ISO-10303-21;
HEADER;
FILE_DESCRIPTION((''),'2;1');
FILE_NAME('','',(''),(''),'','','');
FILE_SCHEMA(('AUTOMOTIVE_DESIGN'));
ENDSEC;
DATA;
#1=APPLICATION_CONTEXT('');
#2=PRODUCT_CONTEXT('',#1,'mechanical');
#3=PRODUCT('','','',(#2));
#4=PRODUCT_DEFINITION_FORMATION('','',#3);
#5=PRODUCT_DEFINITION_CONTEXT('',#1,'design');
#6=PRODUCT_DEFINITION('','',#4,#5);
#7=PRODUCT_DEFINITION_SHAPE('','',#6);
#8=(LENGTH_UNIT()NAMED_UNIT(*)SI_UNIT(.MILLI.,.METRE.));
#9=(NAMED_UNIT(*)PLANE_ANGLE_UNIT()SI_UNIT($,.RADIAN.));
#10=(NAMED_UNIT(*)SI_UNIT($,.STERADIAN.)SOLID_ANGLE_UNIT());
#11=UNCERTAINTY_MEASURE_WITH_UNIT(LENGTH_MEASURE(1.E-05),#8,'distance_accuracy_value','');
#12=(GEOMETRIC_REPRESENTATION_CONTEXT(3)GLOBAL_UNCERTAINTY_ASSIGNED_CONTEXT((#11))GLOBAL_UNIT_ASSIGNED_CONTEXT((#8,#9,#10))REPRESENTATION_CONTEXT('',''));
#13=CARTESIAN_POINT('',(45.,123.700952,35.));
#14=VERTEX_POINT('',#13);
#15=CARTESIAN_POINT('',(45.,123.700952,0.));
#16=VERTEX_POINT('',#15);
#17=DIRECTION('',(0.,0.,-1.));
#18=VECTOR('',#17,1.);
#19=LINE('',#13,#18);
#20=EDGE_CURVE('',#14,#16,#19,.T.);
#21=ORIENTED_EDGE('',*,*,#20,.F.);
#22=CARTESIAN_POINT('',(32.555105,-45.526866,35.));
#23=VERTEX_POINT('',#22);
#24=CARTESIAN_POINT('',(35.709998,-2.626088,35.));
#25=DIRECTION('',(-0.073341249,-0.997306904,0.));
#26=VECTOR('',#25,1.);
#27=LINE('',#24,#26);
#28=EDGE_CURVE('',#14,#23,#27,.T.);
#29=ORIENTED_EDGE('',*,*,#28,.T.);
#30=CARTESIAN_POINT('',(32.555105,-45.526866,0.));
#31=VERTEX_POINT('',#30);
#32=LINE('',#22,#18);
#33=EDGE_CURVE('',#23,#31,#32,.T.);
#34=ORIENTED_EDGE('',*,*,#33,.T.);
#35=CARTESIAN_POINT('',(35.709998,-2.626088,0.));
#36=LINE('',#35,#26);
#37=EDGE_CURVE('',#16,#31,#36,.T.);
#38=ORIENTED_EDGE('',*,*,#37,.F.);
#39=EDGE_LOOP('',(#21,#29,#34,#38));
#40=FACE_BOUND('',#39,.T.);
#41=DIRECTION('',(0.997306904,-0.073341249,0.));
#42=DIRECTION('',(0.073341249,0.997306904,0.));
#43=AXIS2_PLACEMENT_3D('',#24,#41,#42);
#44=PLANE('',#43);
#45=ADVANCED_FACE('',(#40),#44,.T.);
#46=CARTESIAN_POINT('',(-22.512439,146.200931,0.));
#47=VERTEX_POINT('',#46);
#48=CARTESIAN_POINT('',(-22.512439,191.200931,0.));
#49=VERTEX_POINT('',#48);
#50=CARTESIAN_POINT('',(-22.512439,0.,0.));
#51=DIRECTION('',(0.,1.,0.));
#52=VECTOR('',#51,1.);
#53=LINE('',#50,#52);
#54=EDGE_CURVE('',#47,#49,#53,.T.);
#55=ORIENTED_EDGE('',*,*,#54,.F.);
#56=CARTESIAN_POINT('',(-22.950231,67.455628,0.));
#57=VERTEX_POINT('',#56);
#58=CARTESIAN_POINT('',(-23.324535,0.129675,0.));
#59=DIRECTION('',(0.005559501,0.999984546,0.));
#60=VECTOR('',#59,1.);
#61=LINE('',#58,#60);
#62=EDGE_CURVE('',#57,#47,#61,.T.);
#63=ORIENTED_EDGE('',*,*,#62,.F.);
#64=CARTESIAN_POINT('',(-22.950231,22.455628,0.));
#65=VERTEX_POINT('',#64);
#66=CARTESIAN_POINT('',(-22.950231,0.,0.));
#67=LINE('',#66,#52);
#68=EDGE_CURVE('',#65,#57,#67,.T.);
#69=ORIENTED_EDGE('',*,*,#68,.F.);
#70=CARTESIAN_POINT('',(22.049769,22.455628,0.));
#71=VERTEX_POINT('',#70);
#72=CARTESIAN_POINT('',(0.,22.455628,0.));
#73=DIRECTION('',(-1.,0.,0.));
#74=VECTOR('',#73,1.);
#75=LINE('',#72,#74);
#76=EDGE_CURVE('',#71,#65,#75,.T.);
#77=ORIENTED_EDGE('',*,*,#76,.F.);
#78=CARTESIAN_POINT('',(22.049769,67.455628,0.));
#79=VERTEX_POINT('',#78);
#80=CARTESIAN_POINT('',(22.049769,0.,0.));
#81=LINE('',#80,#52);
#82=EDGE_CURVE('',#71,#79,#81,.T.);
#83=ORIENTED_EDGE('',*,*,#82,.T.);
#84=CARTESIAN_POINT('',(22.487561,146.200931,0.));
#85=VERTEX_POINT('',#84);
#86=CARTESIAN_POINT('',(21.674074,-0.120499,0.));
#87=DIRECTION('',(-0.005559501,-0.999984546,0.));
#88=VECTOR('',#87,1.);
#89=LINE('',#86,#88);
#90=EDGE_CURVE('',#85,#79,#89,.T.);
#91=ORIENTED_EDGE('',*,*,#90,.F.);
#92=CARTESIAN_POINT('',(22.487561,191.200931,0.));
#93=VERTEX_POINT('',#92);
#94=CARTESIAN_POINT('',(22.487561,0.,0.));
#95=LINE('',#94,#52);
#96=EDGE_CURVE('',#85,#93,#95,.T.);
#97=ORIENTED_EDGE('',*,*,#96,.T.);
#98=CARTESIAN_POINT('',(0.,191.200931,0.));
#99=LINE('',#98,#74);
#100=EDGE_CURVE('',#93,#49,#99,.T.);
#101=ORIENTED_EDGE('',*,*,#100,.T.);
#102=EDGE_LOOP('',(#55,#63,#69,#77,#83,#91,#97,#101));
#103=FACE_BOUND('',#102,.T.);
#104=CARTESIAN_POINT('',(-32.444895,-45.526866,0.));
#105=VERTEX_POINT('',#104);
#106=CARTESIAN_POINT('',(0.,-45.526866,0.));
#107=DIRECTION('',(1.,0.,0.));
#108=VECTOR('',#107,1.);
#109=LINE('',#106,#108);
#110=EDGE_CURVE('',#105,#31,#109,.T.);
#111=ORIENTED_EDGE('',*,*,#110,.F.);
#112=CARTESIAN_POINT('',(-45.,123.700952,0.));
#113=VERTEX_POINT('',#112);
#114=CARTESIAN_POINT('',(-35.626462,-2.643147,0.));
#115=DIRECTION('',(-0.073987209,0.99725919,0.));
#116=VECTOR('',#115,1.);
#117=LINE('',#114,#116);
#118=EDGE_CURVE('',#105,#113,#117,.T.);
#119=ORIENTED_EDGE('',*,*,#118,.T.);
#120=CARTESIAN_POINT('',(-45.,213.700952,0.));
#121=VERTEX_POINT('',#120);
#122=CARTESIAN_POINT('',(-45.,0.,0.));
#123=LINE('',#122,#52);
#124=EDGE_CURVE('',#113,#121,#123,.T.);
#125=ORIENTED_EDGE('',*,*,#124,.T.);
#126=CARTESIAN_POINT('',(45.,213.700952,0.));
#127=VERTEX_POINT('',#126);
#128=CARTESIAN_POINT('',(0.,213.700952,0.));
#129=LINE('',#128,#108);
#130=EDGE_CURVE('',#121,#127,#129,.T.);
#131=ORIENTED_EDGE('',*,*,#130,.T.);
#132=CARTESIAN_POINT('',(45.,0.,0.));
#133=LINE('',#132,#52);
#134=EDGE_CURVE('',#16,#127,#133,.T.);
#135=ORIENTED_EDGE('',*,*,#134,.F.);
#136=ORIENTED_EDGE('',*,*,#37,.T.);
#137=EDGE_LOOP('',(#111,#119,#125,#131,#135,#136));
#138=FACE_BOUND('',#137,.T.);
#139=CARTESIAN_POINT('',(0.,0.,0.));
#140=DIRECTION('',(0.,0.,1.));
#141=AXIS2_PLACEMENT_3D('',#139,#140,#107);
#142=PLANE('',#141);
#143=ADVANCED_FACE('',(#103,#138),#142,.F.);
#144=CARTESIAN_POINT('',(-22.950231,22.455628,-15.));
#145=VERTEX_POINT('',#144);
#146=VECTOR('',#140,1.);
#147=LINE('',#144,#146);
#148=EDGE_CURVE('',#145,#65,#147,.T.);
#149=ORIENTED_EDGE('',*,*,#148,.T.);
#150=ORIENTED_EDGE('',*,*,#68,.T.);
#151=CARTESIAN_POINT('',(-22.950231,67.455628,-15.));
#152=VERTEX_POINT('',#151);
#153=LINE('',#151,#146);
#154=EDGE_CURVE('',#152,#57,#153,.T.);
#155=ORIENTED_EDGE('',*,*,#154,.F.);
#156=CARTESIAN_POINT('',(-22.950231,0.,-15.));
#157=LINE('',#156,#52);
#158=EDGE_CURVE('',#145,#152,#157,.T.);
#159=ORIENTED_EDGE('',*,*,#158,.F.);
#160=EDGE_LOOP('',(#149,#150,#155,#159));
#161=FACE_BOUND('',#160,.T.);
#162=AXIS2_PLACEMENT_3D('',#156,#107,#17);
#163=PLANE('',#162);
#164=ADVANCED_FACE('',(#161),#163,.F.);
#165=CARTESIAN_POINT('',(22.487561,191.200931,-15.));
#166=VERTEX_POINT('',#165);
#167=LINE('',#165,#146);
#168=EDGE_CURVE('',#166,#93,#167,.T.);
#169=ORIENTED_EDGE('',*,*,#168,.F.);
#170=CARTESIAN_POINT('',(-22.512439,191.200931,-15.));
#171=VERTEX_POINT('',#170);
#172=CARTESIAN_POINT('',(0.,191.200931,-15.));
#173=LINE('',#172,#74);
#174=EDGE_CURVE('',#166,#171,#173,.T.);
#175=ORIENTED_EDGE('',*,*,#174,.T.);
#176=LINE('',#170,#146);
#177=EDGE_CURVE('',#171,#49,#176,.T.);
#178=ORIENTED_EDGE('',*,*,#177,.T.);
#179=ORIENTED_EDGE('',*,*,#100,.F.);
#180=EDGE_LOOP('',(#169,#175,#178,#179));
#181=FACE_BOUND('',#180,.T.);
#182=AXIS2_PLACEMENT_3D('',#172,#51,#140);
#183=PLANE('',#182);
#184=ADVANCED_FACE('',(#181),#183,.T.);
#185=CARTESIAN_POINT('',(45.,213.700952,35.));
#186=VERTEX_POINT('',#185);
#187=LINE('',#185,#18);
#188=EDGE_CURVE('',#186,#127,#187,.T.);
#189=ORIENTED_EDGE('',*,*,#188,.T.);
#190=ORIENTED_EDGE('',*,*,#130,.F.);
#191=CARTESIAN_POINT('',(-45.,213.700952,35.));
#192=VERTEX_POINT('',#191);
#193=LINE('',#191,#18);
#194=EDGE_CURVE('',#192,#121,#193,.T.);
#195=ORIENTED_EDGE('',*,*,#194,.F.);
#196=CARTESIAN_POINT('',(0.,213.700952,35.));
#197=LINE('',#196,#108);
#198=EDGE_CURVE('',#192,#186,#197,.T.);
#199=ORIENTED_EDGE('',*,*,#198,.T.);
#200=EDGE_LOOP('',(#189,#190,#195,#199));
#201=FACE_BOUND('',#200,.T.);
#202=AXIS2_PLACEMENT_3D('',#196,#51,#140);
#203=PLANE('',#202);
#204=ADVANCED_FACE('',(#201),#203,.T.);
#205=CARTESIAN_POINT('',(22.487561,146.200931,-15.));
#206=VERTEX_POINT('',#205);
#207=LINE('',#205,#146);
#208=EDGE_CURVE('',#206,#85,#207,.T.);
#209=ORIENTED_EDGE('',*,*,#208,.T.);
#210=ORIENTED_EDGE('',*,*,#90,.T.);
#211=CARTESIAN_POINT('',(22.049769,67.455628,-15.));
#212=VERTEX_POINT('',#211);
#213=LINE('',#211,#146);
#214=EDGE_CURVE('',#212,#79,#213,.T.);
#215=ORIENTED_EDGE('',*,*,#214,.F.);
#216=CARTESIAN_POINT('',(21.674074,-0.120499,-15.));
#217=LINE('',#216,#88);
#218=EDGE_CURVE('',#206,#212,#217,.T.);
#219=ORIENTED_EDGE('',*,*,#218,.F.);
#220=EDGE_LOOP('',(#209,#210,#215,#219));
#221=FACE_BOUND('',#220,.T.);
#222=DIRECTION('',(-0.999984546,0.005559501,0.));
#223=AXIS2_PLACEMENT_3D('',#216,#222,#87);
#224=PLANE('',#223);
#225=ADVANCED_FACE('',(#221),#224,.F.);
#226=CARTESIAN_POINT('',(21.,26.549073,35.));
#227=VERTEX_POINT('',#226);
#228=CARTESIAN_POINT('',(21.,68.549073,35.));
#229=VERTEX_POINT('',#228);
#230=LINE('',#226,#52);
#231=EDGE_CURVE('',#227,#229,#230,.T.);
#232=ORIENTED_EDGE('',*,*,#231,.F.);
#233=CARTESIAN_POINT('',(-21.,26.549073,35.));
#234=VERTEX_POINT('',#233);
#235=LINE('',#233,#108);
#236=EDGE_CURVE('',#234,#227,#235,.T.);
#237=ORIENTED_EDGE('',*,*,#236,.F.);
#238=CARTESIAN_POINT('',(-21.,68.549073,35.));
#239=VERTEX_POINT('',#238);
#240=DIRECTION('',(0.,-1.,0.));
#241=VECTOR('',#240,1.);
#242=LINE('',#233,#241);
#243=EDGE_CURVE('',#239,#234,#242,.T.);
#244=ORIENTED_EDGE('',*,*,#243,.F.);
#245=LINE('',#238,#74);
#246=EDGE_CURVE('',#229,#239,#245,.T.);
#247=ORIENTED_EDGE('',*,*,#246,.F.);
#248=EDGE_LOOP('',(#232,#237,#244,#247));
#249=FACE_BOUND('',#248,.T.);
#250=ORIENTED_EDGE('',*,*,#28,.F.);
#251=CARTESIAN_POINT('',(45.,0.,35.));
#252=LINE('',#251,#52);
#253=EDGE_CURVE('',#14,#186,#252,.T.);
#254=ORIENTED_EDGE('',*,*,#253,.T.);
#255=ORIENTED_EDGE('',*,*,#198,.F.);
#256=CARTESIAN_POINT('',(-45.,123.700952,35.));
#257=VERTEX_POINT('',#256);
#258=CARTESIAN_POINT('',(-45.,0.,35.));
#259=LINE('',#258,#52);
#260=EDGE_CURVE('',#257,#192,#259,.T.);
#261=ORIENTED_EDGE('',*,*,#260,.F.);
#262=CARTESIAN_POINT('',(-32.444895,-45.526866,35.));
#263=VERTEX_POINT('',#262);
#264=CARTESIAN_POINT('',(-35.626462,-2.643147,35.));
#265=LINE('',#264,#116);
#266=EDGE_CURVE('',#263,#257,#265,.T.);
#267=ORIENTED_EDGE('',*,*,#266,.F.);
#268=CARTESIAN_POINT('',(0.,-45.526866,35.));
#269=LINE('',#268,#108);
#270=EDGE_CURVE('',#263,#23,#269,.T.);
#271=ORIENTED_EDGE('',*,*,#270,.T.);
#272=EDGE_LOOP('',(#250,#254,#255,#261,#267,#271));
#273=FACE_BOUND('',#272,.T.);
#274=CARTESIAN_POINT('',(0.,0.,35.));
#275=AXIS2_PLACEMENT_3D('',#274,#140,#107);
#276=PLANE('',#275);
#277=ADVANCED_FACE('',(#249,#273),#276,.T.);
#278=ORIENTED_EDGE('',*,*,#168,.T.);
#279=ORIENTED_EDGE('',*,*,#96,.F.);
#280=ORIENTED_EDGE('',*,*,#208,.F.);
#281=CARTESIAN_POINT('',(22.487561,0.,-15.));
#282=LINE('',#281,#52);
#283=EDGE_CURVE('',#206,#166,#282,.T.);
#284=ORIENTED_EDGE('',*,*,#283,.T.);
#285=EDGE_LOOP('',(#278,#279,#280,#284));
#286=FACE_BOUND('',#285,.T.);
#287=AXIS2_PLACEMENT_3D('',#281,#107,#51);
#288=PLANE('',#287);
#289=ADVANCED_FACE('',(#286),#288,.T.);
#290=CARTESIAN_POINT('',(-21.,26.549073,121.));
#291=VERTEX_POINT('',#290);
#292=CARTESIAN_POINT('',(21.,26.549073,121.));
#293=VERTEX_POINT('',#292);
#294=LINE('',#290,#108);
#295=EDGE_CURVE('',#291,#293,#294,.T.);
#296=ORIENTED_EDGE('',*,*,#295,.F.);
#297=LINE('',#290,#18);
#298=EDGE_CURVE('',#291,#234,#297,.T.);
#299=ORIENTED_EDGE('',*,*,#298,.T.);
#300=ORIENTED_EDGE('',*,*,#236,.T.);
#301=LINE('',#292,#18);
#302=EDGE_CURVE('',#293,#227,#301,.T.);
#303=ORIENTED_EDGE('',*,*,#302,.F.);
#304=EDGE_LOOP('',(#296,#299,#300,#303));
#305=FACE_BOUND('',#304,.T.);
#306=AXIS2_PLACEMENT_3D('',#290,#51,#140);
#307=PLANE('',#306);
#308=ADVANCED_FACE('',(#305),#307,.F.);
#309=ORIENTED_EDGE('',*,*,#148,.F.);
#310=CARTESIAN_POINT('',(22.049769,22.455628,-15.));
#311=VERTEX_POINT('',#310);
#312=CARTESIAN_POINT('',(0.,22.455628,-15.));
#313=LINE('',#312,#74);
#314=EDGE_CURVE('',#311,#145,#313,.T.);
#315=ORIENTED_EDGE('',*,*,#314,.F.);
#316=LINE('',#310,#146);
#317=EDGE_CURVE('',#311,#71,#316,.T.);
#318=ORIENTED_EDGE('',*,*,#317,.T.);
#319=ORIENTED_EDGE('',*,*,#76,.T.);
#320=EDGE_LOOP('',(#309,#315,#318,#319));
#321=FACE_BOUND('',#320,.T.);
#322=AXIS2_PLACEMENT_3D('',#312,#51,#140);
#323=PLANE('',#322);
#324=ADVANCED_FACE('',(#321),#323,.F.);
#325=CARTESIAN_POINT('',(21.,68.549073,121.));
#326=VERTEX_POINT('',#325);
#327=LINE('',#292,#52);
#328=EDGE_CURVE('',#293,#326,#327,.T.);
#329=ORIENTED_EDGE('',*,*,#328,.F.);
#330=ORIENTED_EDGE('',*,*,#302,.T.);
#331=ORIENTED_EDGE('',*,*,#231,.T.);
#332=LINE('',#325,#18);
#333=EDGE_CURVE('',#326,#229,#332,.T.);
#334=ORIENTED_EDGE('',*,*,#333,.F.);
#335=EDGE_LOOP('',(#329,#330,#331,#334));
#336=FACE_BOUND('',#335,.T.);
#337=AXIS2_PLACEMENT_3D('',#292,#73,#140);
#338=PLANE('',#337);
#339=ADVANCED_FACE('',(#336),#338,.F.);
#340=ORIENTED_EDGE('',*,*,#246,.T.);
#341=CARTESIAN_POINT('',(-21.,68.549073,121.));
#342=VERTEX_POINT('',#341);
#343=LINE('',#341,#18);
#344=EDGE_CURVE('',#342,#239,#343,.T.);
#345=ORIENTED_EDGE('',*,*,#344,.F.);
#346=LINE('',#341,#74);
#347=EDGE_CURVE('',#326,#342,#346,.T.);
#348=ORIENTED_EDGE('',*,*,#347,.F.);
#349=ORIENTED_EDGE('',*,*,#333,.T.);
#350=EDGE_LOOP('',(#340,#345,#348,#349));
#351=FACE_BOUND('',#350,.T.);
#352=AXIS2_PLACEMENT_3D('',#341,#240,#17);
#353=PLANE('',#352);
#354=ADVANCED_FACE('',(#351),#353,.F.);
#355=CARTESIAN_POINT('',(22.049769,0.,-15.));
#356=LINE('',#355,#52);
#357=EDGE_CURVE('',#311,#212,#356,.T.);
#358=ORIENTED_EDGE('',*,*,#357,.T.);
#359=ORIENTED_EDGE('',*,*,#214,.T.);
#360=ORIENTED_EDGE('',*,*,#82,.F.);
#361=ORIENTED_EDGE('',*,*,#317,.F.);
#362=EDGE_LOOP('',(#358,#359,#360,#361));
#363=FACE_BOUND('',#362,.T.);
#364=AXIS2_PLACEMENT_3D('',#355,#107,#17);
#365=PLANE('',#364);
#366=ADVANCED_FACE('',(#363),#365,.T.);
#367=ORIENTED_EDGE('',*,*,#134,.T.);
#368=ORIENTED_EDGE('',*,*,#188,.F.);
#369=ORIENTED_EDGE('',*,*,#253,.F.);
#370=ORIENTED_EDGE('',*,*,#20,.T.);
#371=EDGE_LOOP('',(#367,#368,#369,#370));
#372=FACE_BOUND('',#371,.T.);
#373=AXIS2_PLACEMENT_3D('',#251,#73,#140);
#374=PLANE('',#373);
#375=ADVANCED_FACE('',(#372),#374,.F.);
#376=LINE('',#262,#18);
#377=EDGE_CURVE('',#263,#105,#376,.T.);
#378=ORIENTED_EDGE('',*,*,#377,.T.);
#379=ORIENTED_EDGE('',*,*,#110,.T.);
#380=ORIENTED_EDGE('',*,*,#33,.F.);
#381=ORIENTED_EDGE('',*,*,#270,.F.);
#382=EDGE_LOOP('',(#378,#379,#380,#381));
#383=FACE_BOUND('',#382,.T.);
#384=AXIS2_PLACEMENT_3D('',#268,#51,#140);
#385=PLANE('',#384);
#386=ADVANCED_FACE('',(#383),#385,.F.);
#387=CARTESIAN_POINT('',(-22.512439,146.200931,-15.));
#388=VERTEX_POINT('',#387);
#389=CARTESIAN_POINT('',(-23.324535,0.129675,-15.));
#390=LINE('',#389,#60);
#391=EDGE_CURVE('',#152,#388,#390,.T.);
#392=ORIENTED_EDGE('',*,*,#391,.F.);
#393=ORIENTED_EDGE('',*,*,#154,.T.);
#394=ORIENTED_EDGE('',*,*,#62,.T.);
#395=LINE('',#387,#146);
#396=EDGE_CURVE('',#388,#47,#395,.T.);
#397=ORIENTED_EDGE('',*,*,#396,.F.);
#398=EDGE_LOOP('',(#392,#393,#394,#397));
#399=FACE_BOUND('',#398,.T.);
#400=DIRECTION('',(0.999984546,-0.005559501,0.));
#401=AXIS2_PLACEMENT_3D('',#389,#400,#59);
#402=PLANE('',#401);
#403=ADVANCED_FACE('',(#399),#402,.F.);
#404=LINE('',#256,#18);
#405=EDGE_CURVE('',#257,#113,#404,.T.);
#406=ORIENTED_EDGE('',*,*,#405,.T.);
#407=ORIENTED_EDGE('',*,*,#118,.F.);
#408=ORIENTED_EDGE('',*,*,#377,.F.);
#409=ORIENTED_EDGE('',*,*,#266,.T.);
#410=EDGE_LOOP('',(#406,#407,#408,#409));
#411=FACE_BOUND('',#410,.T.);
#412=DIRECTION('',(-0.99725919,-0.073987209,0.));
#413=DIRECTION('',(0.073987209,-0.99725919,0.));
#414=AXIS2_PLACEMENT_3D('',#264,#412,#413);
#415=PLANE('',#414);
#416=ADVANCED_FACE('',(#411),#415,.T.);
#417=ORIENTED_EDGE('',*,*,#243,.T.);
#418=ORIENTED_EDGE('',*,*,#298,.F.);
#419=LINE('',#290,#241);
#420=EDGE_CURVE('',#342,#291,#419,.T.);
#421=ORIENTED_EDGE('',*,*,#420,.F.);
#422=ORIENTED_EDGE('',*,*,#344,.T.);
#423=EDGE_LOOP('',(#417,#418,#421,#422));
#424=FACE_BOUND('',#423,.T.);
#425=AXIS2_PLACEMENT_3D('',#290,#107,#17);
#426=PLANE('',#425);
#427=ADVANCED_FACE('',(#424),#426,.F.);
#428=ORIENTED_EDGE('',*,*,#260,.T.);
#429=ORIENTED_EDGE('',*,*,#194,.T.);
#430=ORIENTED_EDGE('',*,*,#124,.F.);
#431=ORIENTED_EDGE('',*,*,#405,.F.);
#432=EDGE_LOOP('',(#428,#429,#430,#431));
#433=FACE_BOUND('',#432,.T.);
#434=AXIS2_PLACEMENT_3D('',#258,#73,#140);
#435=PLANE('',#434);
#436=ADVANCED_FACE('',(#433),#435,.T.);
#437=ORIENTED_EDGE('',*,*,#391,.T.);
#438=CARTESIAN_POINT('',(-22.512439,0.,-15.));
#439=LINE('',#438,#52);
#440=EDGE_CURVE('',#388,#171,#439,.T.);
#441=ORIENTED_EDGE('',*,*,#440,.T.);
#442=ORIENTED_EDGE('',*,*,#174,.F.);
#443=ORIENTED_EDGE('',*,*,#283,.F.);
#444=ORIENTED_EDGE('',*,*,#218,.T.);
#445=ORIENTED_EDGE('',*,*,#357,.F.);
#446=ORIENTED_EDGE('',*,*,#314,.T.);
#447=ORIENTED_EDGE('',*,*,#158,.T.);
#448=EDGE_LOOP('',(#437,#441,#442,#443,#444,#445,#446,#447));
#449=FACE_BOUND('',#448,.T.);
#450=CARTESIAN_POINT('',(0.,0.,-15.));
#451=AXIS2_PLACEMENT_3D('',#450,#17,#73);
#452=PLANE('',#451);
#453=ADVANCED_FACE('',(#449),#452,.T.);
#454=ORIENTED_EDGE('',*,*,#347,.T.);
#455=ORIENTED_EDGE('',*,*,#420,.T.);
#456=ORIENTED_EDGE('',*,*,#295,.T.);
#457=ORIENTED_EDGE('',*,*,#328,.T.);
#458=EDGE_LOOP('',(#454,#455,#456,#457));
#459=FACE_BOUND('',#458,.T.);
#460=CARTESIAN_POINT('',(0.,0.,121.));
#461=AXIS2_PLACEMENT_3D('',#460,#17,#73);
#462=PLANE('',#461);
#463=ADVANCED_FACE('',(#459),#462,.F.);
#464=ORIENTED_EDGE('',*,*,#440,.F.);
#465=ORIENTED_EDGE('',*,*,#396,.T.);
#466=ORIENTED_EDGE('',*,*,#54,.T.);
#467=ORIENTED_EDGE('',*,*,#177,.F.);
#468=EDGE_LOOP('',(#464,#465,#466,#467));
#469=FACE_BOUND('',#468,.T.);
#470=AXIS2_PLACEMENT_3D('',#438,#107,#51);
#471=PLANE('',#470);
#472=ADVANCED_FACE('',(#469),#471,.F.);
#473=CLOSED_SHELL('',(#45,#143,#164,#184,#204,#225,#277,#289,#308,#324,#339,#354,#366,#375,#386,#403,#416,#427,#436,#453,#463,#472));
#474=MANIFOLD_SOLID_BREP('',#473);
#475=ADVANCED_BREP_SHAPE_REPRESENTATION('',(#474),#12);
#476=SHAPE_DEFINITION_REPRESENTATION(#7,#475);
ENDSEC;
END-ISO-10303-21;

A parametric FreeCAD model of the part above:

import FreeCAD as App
import Part
import Sketcher
from FreeCAD import Vector


def add_polygon(sketch, points):
    """Adds a closed chain of lines whose ends are joined by coincident constraints."""
    first, n = sketch.GeometryCount, len(points)
    for a, b in zip(points, points[1:] + points[:1]):
        sketch.addGeometry(Part.LineSegment(App.Vector(*a, 0), App.Vector(*b, 0)), False)
    for i in range(n):
        sketch.addConstraint(Sketcher.Constraint("Coincident", first + i, 2, first + (i + 1) % n, 1))

doc = App.newDocument("Part")
params = doc.addObject("Spreadsheet::Sheet", "Params")
for row, (alias, value) in enumerate([
    ("sketch1_width", "65 mm"),
    ("sketch1_width2", "90 mm"),
    ("pad1_length", "35 mm"),
    ("sketch2_width", "42 mm"),
    ("pad2_length", "86 mm"),
    ("sketch3_width", "45 mm"),
    ("pad3_length", "15 mm"),
], start=1):
    params.set(f"A{row}", alias)
    params.set(f"B{row}", "=" + value)
    params.setAlias(f"B{row}", alias)

body = doc.addObject("PartDesign::Body", "Body")

# Sketch on XY plane
sketch1 = doc.addObject("Sketcher::SketchObject", "Sketch")
body.addObject(sketch1)
sketch1.AttachmentSupport = (doc.XY_Plane, [""])
sketch1.MapMode = "FlatFace"
add_polygon(sketch1, [(-45, 124), (-32, -46), (33, -46), (45, 124), (45, 214), (-45, 214)])  # lines 0-5
sketch1.addConstraint([
    Sketcher.Constraint("Horizontal", 1),
    Sketcher.Constraint("Vertical", 3),
    Sketcher.Constraint("Horizontal", 4),
    Sketcher.Constraint("Vertical", 5),
    Sketcher.Constraint("Symmetric", 2, 2, 5, 2, -2),
    Sketcher.Constraint("Equal", 4, 3),
    Sketcher.Constraint("DistanceX", 1, 1, 1, 2, 65.0),
    Sketcher.Constraint("DistanceX", 4, 2, 4, 1, 90.0),
    Sketcher.Constraint("DistanceY", 1, 2, 2, 2, 169.227818),
    Sketcher.Constraint("Distance", 0, 169.692914),
    Sketcher.Constraint("DistanceY", 0, 2, -1, 1, 45.526866),
])
sketch1.setExpression("Constraints[12]", "Params.sketch1_width")
sketch1.setExpression("Constraints[13]", "Params.sketch1_width2")
pad1 = doc.addObject("PartDesign::Pad", "Pad")
body.addObject(pad1)
pad1.Profile = sketch1
pad1.setExpression("Length", "Params.pad1_length")

# Sketch on XY plane
sketch2 = doc.addObject("Sketcher::SketchObject", "Sketch001")
body.addObject(sketch2)
sketch2.AttachmentSupport = (doc.XY_Plane, [""])
sketch2.MapMode = "FlatFace"
sketch2.AttachmentOffset = App.Placement(Vector(0, 0, 35), App.Rotation())
add_polygon(sketch2, [(-21, 69), (-21, 27), (21, 27), (21, 69)])  # lines 0-3
sketch2.addConstraint([
    Sketcher.Constraint("Vertical", 0),
    Sketcher.Constraint("Horizontal", 1),
    Sketcher.Constraint("Vertical", 2),
    Sketcher.Constraint("Horizontal", 3),
    Sketcher.Constraint("Equal", 3, 0),
    Sketcher.Constraint("DistanceX", 1, 1, 1, 2, 42.0),
    Sketcher.Constraint("DistanceX", 0, 2, -1, 1, 21.0),
    Sketcher.Constraint("DistanceY", -1, 1, 0, 2, 26.549073),
])
sketch2.setExpression("Constraints[9]", "Params.sketch2_width")
pad2 = doc.addObject("PartDesign::Pad", "Pad001")
body.addObject(pad2)
pad2.Profile = sketch2
pad2.setExpression("Length", "Params.pad2_length")

# Sketch on XY plane
sketch3 = doc.addObject("Sketcher::SketchObject", "Sketch002")
body.addObject(sketch3)
sketch3.AttachmentSupport = (doc.XY_Plane, [""])
sketch3.MapMode = "FlatFace"
add_polygon(sketch3, [(22, 191), (22, 146), (22, 67), (22, 22), (-23, 22), (-23, 67), (-23, 146), (-23, 191)])  # lines 0-7
sketch3.addConstraint([
    Sketcher.Constraint("Vertical", 0),
    Sketcher.Constraint("Vertical", 2),
    Sketcher.Constraint("Horizontal", 3),
    Sketcher.Constraint("Vertical", 4),
    Sketcher.Constraint("Vertical", 6),
    Sketcher.Constraint("Horizontal", 7),
    Sketcher.Constraint("Parallel", 1, 5),
    Sketcher.Constraint("Horizontal", 1, 2, 4, 2),
    Sketcher.Constraint("Horizontal", 0, 2, 5, 2),
    Sketcher.Constraint("Equal", 7, 0),
    Sketcher.Constraint("Equal", 0, 2),
    Sketcher.Constraint("DistanceX", 3, 2, 3, 1, 45.0),
    Sketcher.Constraint("Distance", 1, 78.74652),
    Sketcher.Constraint("DistanceX", -1, 1, 0, 2, 22.487561),
    Sketcher.Constraint("DistanceY", -1, 1, 0, 2, 146.200931),
    Sketcher.Constraint("DistanceX", -1, 1, 1, 2, 22.049769),
])
sketch3.setExpression("Constraints[19]", "Params.sketch3_width")
pad3 = doc.addObject("PartDesign::Pad", "Pad002")
body.addObject(pad3)
pad3.Profile = sketch3
pad3.setExpression("Length", "Params.pad3_length")
pad3.Reversed = True

doc.recompute()
